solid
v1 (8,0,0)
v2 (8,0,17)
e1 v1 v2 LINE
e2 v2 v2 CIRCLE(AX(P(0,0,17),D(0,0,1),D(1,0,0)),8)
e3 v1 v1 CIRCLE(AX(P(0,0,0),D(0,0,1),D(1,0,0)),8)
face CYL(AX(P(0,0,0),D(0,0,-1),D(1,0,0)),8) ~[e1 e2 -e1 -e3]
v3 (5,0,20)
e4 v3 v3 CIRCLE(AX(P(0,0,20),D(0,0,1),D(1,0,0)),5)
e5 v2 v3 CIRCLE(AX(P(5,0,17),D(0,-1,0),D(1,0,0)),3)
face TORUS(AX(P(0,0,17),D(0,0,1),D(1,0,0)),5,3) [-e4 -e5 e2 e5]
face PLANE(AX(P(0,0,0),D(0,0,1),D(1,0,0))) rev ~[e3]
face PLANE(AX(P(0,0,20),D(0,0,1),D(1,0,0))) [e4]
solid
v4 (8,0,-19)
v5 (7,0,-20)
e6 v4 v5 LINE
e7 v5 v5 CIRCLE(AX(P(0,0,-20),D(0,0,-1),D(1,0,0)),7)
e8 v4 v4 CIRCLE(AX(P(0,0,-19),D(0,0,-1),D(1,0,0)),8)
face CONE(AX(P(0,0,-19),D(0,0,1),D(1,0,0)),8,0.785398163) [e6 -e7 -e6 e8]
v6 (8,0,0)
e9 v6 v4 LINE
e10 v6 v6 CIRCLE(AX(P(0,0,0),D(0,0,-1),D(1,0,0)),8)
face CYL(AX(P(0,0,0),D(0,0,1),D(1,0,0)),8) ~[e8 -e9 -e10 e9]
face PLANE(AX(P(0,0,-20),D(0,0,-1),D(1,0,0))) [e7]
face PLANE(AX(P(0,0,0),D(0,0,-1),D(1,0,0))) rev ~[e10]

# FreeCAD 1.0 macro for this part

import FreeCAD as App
import Part
import Sketcher

V = App.Vector
Q = App.Units.Quantity


def edges_at(feature, points):
    """Names of the edges that pass closest to the given points."""
    edges = feature.Shape.Edges
    near = lambda p: min(range(len(edges)), key=lambda i: edges[i].distToShape(Part.Vertex(*p))[0])
    return sorted({f"Edge{near(p) + 1}" for p in points})

doc = App.newDocument("Part")
body = doc.addObject("PartDesign::Body", "Body")

sketch1 = body.newObject("Sketcher::SketchObject", "Sketch")
sketch1.AttachmentSupport = (doc.getObject("XY_Plane"), [""])
sketch1.MapMode = "FlatFace"
sketch1.addGeometry(Part.Circle(V(0, 0, 0), V(0, 0, 1), 8), False)
sketch1.addConstraint(Sketcher.Constraint("Coincident", 0, 3, -1, 1))
sketch1.addConstraint(Sketcher.Constraint("Diameter", 0, Q("16 mm")))
pad1 = body.newObject("PartDesign::Pad", "Pad")
pad1.Profile = sketch1
pad1.Length = 20
doc.recompute()

fillet = body.newObject("PartDesign::Fillet", "Fillet")
fillet.Base = (pad1, edges_at(pad1, [(-8, 0, 20)]))
fillet.Radius = 3
body2 = doc.addObject("PartDesign::Body", "Body001")

sketch2 = body2.newObject("Sketcher::SketchObject", "Sketch001")
sketch2.AttachmentSupport = (doc.getObject("XY_Plane001"), [""])
sketch2.MapMode = "FlatFace"
sketch2.addGeometry(Part.Circle(V(0, 0, 0), V(0, 0, 1), 8), False)
sketch2.addConstraint(Sketcher.Constraint("Coincident", 0, 3, -1, 1))
sketch2.addConstraint(Sketcher.Constraint("Diameter", 0, Q("16 mm")))
pad2 = body2.newObject("PartDesign::Pad", "Pad001")
pad2.Profile = sketch2
pad2.Length = 20
pad2.Reversed = True
doc.recompute()

chamfer = body2.newObject("PartDesign::Chamfer", "Chamfer")
chamfer.Base = (pad2, edges_at(pad2, [(-8, 0, -20)]))
chamfer.Size = 1

doc.recompute()
